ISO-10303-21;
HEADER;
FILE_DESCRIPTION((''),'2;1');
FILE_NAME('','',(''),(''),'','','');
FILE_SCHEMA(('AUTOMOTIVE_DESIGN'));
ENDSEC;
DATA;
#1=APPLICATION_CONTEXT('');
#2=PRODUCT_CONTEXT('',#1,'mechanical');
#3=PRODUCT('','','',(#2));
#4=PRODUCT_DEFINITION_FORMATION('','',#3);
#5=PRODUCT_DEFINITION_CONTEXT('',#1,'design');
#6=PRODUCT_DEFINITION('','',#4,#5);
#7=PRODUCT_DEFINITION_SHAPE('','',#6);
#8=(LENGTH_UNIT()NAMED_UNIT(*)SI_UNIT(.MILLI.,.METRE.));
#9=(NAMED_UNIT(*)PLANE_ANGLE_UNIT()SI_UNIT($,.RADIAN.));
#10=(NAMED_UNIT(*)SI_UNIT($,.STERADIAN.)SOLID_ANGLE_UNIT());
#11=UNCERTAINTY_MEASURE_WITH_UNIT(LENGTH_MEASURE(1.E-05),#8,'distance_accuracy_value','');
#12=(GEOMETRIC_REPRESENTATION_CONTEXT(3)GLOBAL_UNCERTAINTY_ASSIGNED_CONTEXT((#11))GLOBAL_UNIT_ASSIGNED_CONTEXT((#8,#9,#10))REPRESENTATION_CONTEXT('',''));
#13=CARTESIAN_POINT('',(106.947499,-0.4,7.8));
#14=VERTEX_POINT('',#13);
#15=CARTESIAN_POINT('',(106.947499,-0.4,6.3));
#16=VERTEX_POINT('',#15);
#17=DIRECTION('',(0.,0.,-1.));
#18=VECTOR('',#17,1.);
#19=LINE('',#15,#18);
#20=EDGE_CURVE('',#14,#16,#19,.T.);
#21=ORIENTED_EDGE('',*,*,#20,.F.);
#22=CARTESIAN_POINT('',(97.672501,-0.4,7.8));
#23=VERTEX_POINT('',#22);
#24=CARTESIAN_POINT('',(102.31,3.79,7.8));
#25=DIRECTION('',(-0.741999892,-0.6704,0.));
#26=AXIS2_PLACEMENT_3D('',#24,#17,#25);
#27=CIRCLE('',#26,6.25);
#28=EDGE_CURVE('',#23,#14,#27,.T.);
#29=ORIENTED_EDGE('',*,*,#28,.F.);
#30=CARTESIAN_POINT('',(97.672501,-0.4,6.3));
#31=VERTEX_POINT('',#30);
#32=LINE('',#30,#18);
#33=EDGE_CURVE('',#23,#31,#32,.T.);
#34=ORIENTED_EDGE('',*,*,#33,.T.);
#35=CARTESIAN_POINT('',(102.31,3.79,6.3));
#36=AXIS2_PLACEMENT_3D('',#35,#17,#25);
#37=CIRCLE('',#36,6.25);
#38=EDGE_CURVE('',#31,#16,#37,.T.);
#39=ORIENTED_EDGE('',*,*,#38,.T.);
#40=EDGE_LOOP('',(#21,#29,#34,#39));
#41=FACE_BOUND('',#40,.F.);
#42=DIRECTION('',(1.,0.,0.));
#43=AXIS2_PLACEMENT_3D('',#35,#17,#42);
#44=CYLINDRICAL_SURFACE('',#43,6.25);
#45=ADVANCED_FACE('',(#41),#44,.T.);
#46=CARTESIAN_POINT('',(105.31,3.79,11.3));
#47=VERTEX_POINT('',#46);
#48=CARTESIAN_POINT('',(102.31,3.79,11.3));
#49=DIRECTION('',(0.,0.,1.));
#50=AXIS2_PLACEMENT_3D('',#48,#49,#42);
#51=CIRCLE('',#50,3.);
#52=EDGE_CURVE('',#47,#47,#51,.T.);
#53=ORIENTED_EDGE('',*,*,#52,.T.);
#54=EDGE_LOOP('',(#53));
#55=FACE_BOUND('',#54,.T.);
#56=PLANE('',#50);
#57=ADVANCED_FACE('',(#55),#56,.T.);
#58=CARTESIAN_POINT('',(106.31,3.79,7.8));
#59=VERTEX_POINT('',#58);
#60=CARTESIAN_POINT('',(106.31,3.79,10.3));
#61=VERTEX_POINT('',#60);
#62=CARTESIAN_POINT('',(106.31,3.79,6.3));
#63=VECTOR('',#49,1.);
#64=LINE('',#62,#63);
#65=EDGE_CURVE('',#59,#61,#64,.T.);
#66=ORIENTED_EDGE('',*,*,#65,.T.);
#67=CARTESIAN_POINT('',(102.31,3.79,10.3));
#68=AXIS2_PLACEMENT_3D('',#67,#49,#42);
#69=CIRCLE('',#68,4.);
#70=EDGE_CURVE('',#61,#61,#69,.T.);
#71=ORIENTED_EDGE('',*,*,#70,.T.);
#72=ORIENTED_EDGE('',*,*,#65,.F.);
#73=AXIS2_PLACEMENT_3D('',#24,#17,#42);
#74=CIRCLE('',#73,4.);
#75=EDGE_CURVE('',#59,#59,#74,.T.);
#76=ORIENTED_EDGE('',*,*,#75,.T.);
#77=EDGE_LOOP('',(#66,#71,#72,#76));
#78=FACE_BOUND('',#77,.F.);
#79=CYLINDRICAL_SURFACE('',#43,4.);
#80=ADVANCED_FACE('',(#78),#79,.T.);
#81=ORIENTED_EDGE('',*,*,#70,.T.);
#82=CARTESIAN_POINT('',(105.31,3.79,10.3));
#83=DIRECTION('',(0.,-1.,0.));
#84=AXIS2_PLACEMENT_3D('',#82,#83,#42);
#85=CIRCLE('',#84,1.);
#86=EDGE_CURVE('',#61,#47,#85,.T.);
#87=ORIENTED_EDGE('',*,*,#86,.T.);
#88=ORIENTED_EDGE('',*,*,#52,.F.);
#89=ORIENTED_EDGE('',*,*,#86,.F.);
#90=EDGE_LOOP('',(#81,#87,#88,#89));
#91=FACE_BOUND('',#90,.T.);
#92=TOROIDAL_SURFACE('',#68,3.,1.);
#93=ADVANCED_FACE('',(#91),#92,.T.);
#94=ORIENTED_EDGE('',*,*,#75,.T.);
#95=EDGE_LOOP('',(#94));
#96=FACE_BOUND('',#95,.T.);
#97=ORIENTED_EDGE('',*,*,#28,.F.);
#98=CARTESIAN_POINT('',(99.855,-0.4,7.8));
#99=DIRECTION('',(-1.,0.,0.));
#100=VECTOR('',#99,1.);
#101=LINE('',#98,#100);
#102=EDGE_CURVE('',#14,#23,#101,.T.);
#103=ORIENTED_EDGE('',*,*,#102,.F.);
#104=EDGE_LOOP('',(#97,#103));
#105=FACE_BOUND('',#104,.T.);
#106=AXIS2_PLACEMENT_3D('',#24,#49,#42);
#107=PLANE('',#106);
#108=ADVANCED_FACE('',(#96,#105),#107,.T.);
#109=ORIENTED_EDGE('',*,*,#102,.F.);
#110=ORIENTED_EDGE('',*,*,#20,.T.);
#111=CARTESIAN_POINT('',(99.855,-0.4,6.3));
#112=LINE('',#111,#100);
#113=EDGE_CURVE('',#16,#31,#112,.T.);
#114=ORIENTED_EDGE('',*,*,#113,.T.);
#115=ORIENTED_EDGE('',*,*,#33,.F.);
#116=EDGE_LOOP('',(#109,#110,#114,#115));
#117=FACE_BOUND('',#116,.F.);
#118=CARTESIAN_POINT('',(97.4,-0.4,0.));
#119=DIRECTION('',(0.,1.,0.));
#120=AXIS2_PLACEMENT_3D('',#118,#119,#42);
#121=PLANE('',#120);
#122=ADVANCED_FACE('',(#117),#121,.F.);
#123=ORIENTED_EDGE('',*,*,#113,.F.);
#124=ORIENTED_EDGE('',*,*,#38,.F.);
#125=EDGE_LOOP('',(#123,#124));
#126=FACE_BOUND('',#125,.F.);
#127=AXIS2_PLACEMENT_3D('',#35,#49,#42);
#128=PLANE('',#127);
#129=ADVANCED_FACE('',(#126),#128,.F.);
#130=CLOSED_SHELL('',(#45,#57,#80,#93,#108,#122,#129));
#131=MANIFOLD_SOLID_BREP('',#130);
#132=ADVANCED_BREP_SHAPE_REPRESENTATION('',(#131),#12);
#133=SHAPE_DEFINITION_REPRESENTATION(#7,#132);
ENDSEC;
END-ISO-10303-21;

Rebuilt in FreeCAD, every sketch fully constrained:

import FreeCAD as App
import Part
import Sketcher
Q = App.Units.Quantity


def edges_at(feature, points):
    """Names of the edges that pass closest to the given points."""
    edges = feature.Shape.Edges
    near = lambda p: min(range(len(edges)), key=lambda i: edges[i].distToShape(Part.Vertex(*p))[0])
    return sorted({f"Edge{near(p) + 1}" for p in points})

doc = App.newDocument("Part")
body = doc.addObject("PartDesign::Body", "Body")

sketch1 = doc.addObject("Sketcher::SketchObject", "Sketch")
body.addObject(sketch1)
sketch1.AttachmentSupport = (doc.XY_Plane, [""])
sketch1.MapMode = "FlatFace"
sketch1.addGeometry([
    Part.LineSegment(App.Vector(97.4, -0.4, 0), App.Vector(97.4, -10.4, 0)),
    Part.LineSegment(App.Vector(97.4, -10.4, 0), App.Vector(107.4, -10.4, 0)),
    Part.LineSegment(App.Vector(107.4, -10.4, 0), App.Vector(107.4, -0.4, 0)),
    Part.LineSegment(App.Vector(107.4, -0.4, 0), App.Vector(97.4, -0.4, 0)),
], False)
sketch1.addConstraint([
    Sketcher.Constraint("Coincident", 0, 2, 1, 1),
    Sketcher.Constraint("Coincident", 1, 2, 2, 1),
    Sketcher.Constraint("Coincident", 2, 2, 3, 1),
    Sketcher.Constraint("Coincident", 3, 2, 0, 1),
    Sketcher.Constraint("Vertical", 0),
    Sketcher.Constraint("Horizontal", 1),
    Sketcher.Constraint("Vertical", 2),
    Sketcher.Constraint("Horizontal", 3),
    Sketcher.Constraint("Equal", 3, 0),
    Sketcher.Constraint("DistanceX", 1, 1, 1, 2, Q("10 mm")),
    Sketcher.Constraint("DistanceX", -1, 1, 0, 2, Q("97.4 mm")),
    Sketcher.Constraint("DistanceY", 0, 2, -1, 1, Q("10.4 mm")),
])
pad1 = doc.addObject("PartDesign::Pad", "Pad")
body.addObject(pad1)
pad1.Profile = sketch1
pad1.Length = 10
body2 = doc.addObject("PartDesign::Body", "Body001")

sketch2 = doc.addObject("Sketcher::SketchObject", "Sketch001")
body2.addObject(sketch2)
sketch2.AttachmentSupport = (doc.getObject("XY_Plane001"), [""])
sketch2.MapMode = "FlatFace"
sketch2.AttachmentOffset = App.Placement(App.Vector(0, 0, 6.3), App.Rotation())
sketch2.addGeometry(Part.Circle(App.Vector(120.31, 3.79, 0), App.Vector(0, 0, 1), 4), False)
sketch2.addConstraint([
    Sketcher.Constraint("Diameter", 0, Q("8 mm")),
    Sketcher.Constraint("DistanceX", -1, 1, 0, 3, Q("120.31 mm")),
    Sketcher.Constraint("DistanceY", -1, 1, 0, 3, Q("3.79 mm")),
])
pad2 = doc.addObject("PartDesign::Pad", "Pad001")
body2.addObject(pad2)
pad2.Profile = sketch2
pad2.Length = 5
doc.recompute()

fillet = doc.addObject("PartDesign::Fillet", "Fillet")
body2.addObject(fillet)
fillet.Base = (pad2, edges_at(pad2, [(116.31, 3.79, 11.3)]))
fillet.Radius = 1
body3 = doc.addObject("PartDesign::Body", "Body002")

sketch3 = doc.addObject("Sketcher::SketchObject", "Sketch002")
body3.addObject(sketch3)
sketch3.AttachmentSupport = (doc.getObject("XY_Plane002"), [""])
sketch3.MapMode = "FlatFace"
sketch3.AttachmentOffset = App.Placement(App.Vector(0, 0, 6.3), App.Rotation())
sketch3.addGeometry(Part.Circle(App.Vector(120.31, 3.79, 0), App.Vector(0, 0, 1), 6.25), False)
sketch3.addConstraint([
    Sketcher.Constraint("Diameter", 0, Q("12.5 mm")),
    Sketcher.Constraint("DistanceX", -1, 1, 0, 3, Q("120.31 mm")),
    Sketcher.Constraint("DistanceY", -1, 1, 0, 3, Q("3.79 mm")),
])
pad3 = doc.addObject("PartDesign::Pad", "Pad002")
body3.addObject(pad3)
pad3.Profile = sketch3
pad3.Length = 1.5
doc.recompute()

boolean = doc.addObject("PartDesign::Boolean", "Boolean")
body3.addObject(boolean)
boolean.Type = "Fuse"
boolean.addObjects([body2])
body4 = doc.addObject("PartDesign::Body", "Body003")
doc.recompute()

body3.Placement = App.Placement(App.Vector(-18, 0, 0), App.Rotation(App.Vector(0, 0, 1), 0))
boolean2 = doc.addObject("PartDesign::Boolean", "Boolean001")
body4.addObject(boolean2)
boolean2.Type = "Fuse"
boolean2.addObjects([body3])
doc.recompute()

boolean3 = doc.addObject("PartDesign::Boolean", "Boolean002")
body4.addObject(boolean3)
boolean3.Type = "Cut"
boolean3.addObjects([body])

doc.recompute()
